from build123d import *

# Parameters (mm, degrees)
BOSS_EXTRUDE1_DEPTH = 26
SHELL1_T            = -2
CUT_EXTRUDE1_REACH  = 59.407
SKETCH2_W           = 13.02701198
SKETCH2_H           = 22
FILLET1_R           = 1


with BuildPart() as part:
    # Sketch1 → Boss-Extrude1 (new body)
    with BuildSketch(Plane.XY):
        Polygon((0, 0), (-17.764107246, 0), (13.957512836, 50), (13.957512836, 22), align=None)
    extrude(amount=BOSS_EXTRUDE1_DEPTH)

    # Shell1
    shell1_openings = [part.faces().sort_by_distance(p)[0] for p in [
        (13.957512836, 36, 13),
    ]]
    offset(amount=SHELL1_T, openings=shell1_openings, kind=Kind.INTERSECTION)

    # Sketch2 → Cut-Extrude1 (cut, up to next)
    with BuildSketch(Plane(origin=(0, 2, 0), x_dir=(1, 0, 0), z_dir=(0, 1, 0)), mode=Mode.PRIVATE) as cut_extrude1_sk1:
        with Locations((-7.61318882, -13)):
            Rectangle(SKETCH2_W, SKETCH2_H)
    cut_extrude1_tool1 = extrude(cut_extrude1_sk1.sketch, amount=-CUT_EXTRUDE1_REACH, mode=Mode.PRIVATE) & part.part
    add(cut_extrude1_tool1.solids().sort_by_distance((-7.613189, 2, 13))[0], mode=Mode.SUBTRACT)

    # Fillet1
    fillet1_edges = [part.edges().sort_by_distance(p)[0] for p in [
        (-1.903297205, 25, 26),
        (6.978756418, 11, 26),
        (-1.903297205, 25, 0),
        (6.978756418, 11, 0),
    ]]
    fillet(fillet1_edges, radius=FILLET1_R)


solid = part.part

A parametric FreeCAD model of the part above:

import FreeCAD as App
import Part
import Sketcher
from FreeCAD import Vector
Q = App.Units.Quantity


def edges_at(feature, points):
    """Names of the edges that pass closest to the given points."""
    edges = feature.Shape.Edges
    near = lambda p: min(range(len(edges)), key=lambda i: edges[i].distToShape(Part.Vertex(*p))[0])
    return sorted({f"Edge{near(p) + 1}" for p in points})


def faces_at(feature, points):
    """Names of the faces that lie closest to the given points."""
    faces = feature.Shape.Faces
    near = lambda p: min(range(len(faces)), key=lambda i: faces[i].distToShape(Part.Vertex(*p))[0])
    return sorted({f"Face{near(p) + 1}" for p in points})

doc = App.newDocument("Part")
body = doc.addObject("PartDesign::Body", "Body")

# Sketch on XY plane
sketch1 = doc.addObject("Sketcher::SketchObject", "Sketch")
body.addObject(sketch1)
sketch1.AttachmentSupport = (doc.XY_Plane, [""])
sketch1.MapMode = "FlatFace"
sketch1.addGeometry(Part.LineSegment(Vector(-17.764107, 0, 0), Vector(0, 0, 0)), False)
sketch1.addGeometry(Part.LineSegment(Vector(0, 0, 0), Vector(13.957513, 22, 0)), False)
sketch1.addGeometry(Part.LineSegment(Vector(13.957513, 22, 0), Vector(13.957513, 50, 0)), False)
sketch1.addGeometry(Part.LineSegment(Vector(13.957513, 50, 0), Vector(-17.764107, 0, 0)), False)
sketch1.addConstraint(Sketcher.Constraint("Coincident", 0, 2, 1, 1))
sketch1.addConstraint(Sketcher.Constraint("Coincident", 1, 2, 2, 1))
sketch1.addConstraint(Sketcher.Constraint("Coincident", 2, 2, 3, 1))
sketch1.addConstraint(Sketcher.Constraint("Coincident", 3, 2, 0, 1))
sketch1.addConstraint(Sketcher.Constraint("Horizontal", 0))
sketch1.addConstraint(Sketcher.Constraint("Vertical", 2))
sketch1.addConstraint(Sketcher.Constraint("Coincident", 0, 2, -1, 1))
sketch1.addConstraint(Sketcher.Constraint("Parallel", 1, 3))
sketch1.addConstraint(Sketcher.Constraint("DistanceY", 2, 1, 2, 2, Q("28 mm")))
sketch1.addConstraint(Sketcher.Constraint("DistanceY", -1, 1, 1, 2, Q("22 mm")))
sketch1.addConstraint(Sketcher.Constraint("Distance", 3, Q("59.213691 mm")))
pad1 = doc.addObject("PartDesign::Pad", "Pad")
body.addObject(pad1)
pad1.Profile = sketch1
pad1.Length = 26
doc.recompute()

thickness = doc.addObject("PartDesign::Thickness", "Thickness")
body.addObject(thickness)
thickness.Base = (pad1, faces_at(pad1, [(13.958, 36, 13)]))
thickness.Value = 2
thickness.Reversed = True
thickness.Join = "Intersection"

# Sketch on XZ plane
sketch2 = doc.addObject("Sketcher::SketchObject", "Sketch001")
body.addObject(sketch2)
sketch2.AttachmentSupport = (doc.XZ_Plane, [""])
sketch2.MapMode = "FlatFace"
sketch2.AttachmentOffset = App.Placement(Vector(0, 0, -2), App.Rotation())
sketch2.addGeometry(Part.LineSegment(Vector(-14.126695, 2, 0), Vector(-14.126695, 24, 0)), False)
sketch2.addGeometry(Part.LineSegment(Vector(-14.126695, 24, 0), Vector(-1.099683, 24, 0)), False)
sketch2.addGeometry(Part.LineSegment(Vector(-1.099683, 24, 0), Vector(-1.099683, 2, 0)), False)
sketch2.addGeometry(Part.LineSegment(Vector(-1.099683, 2, 0), Vector(-14.126695, 2, 0)), False)
sketch2.addConstraint(Sketcher.Constraint("Coincident", 0, 2, 1, 1))
sketch2.addConstraint(Sketcher.Constraint("Coincident", 1, 2, 2, 1))
sketch2.addConstraint(Sketcher.Constraint("Coincident", 2, 2, 3, 1))
sketch2.addConstraint(Sketcher.Constraint("Coincident", 3, 2, 0, 1))
sketch2.addConstraint(Sketcher.Constraint("Vertical", 0))
sketch2.addConstraint(Sketcher.Constraint("Horizontal", 1))
sketch2.addConstraint(Sketcher.Constraint("Vertical", 2))
sketch2.addConstraint(Sketcher.Constraint("Horizontal", 3))
sketch2.addConstraint(Sketcher.Constraint("DistanceY", 0, 1, 0, 2, Q("22 mm")))
sketch2.addConstraint(Sketcher.Constraint("DistanceY", -1, 1, 0, 2, Q("24 mm")))
sketch2.addConstraint(Sketcher.Constraint("DistanceX", 1, 1, 1, 2, Q("13.027012 mm")))
sketch2.addConstraint(Sketcher.Constraint("DistanceX", 0, 2, -1, 1, Q("14.126695 mm")))
pocket1 = doc.addObject("PartDesign::Pocket", "Pocket")
body.addObject(pocket1)
pocket1.Profile = sketch2
pocket1.Type = "UpToFirst"
pocket1.Reversed = True
doc.recompute()

fillet = doc.addObject("PartDesign::Fillet", "Fillet")
body.addObject(fillet)
fillet.Base = (pocket1, edges_at(pocket1, [
    (-1.903, 25, 26),
    (6.979, 11, 26),
    (-1.903, 25, 0),
    (6.979, 11, 0),
]))
fillet.Radius = 1

doc.recompute()
